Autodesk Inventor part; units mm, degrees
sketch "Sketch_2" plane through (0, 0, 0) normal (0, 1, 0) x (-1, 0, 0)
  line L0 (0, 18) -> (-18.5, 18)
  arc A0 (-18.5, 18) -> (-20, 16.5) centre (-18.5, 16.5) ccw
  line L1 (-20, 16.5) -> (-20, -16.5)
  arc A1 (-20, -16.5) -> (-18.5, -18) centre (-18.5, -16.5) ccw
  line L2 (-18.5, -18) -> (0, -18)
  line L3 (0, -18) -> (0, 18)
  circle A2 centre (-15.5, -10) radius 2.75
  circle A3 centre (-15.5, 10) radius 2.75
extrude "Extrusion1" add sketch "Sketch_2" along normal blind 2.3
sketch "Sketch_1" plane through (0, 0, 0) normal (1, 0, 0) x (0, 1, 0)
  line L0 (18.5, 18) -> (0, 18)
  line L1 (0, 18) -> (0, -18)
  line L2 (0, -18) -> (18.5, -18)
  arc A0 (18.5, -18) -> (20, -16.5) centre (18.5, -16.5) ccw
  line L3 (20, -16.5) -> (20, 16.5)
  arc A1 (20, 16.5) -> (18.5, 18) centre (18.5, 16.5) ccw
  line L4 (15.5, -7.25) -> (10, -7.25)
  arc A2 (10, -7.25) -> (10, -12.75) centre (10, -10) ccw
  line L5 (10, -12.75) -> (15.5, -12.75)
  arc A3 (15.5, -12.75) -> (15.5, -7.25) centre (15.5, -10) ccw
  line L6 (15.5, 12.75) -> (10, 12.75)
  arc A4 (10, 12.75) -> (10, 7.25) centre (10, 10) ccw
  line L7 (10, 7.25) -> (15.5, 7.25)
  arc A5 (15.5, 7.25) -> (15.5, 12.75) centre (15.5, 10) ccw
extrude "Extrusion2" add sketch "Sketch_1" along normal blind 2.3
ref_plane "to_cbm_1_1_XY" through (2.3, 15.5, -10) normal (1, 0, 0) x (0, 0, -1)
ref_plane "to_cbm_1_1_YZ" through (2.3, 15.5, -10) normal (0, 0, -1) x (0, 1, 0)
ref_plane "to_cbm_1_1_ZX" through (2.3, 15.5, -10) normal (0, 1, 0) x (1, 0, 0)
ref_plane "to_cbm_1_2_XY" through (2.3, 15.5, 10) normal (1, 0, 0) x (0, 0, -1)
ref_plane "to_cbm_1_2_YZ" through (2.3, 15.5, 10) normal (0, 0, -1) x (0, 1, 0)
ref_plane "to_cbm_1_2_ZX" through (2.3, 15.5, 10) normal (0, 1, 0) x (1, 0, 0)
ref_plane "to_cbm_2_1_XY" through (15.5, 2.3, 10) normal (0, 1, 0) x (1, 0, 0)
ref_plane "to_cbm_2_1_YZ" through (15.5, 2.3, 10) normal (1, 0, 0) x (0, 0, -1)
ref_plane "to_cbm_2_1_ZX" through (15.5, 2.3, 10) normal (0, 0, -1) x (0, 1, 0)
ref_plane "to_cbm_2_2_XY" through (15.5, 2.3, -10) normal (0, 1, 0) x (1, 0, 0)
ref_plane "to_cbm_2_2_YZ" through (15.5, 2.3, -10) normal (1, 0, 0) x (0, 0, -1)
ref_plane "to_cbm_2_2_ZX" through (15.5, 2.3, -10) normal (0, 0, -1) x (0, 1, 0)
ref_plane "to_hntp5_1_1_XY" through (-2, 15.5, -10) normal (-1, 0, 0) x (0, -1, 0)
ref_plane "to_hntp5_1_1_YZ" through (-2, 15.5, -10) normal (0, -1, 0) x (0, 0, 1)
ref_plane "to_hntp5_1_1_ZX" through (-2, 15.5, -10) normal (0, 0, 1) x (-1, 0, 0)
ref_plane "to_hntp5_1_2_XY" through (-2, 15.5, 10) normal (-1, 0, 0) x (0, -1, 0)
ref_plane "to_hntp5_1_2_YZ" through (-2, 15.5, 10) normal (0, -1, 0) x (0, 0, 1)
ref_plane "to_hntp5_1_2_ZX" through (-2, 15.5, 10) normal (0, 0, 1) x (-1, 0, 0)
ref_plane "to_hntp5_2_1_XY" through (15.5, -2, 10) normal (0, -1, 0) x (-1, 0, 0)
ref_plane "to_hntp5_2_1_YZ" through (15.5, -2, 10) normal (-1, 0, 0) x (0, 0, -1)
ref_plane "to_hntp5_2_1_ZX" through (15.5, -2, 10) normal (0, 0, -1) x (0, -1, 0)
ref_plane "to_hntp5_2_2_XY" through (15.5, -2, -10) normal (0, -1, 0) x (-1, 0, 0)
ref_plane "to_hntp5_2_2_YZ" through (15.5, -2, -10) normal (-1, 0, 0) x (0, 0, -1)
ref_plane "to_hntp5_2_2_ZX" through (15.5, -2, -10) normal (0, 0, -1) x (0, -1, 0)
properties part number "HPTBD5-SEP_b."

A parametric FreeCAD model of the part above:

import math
import FreeCAD as App
import Part
import Sketcher
from FreeCAD import Vector

doc = App.newDocument("Part")
body = doc.addObject("PartDesign::Body", "Body")

# Sketch on XZ plane
sketch1 = doc.addObject("Sketcher::SketchObject", "Sketch")
body.addObject(sketch1)
sketch1.AttachmentSupport = (doc.XZ_Plane, [""])
sketch1.MapMode = "FlatFace"
sketch1.addGeometry(Part.LineSegment(Vector(0, -18, 0), Vector(0, 18, 0)), False)
sketch1.addGeometry(Part.LineSegment(Vector(0, 18, 0), Vector(18.5, 18, 0)), False)
sketch1.addGeometry(Part.ArcOfCircle(Part.Circle(Vector(18.5, 16.5, 0), Vector(0, 0, 1), 1.5), math.radians(0), math.radians(90)), False)
sketch1.addGeometry(Part.LineSegment(Vector(20, 16.5, 0), Vector(20, -16.5, 0)), False)
sketch1.addGeometry(Part.ArcOfCircle(Part.Circle(Vector(18.5, -16.5, 0), Vector(0, 0, 1), 1.5), math.radians(-90), math.radians(0)), False)
sketch1.addGeometry(Part.LineSegment(Vector(18.5, -18, 0), Vector(0, -18, 0)), False)
sketch1.addGeometry(Part.Circle(Vector(15.5, -10, 0), Vector(0, 0, 1), 2.75), False)
sketch1.addGeometry(Part.Circle(Vector(15.5, 10, 0), Vector(0, 0, 1), 2.75), False)
sketch1.addConstraint(Sketcher.Constraint("Coincident", 0, 2, 1, 1))
sketch1.addConstraint(Sketcher.Constraint("Tangent", 1, 2, 2, 2))
sketch1.addConstraint(Sketcher.Constraint("Tangent", 2, 1, 3, 1))
sketch1.addConstraint(Sketcher.Constraint("Tangent", 3, 2, 4, 2))
sketch1.addConstraint(Sketcher.Constraint("Tangent", 4, 1, 5, 1))
sketch1.addConstraint(Sketcher.Constraint("Coincident", 5, 2, 0, 1))
sketch1.addConstraint(Sketcher.Constraint("Vertical", 0))
sketch1.addConstraint(Sketcher.Constraint("Horizontal", 1))
sketch1.addConstraint(Sketcher.Constraint("Vertical", 3))
sketch1.addConstraint(Sketcher.Constraint("Horizontal", 5))
sketch1.addConstraint(Sketcher.Constraint("Equal", 2, 4))
sketch1.addConstraint(Sketcher.Constraint("Equal", 6, 7))
sketch1.addConstraint(Sketcher.Constraint("Symmetric", 0, 2, 5, 2, -1, 1))
sketch1.addConstraint(Sketcher.Constraint("Symmetric", 6, 3, 7, 3, -1))
sketch1.addConstraint(Sketcher.Constraint("Diameter", 6, 5.5))
sketch1.addConstraint(Sketcher.Constraint("Radius", 2, 1.5))
sketch1.addConstraint(Sketcher.Constraint("DistanceY", 0, 1, 0, 2, 36.0))
sketch1.addConstraint(Sketcher.Constraint("DistanceX", 1, 1, 1, 2, 18.5))
sketch1.addConstraint(Sketcher.Constraint("DistanceY", 6, 3, -1, 1, 10.0))
sketch1.addConstraint(Sketcher.Constraint("DistanceX", 6, 3, 4, 3, 3.0))
pad1 = doc.addObject("PartDesign::Pad", "Pad")
body.addObject(pad1)
pad1.Profile = sketch1
pad1.Length = 2.3
pad1.Reversed = True

# Sketch on YZ plane
sketch2 = doc.addObject("Sketcher::SketchObject", "Sketch001")
body.addObject(sketch2)
sketch2.AttachmentSupport = (doc.YZ_Plane, [""])
sketch2.MapMode = "FlatFace"
sketch2.addGeometry(Part.ArcOfCircle(Part.Circle(Vector(18.5, 16.5, 0), Vector(0, 0, 1), 1.5), math.radians(0), math.radians(90)), False)
sketch2.addGeometry(Part.LineSegment(Vector(18.5, 18, 0), Vector(0, 18, 0)), False)
sketch2.addGeometry(Part.LineSegment(Vector(0, 18, 0), Vector(0, -18, 0)), False)
sketch2.addGeometry(Part.LineSegment(Vector(0, -18, 0), Vector(18.5, -18, 0)), False)
sketch2.addGeometry(Part.ArcOfCircle(Part.Circle(Vector(18.5, -16.5, 0), Vector(0, 0, 1), 1.5), math.radians(-90), math.radians(0)), False)
sketch2.addGeometry(Part.LineSegment(Vector(20, -16.5, 0), Vector(20, 16.5, 0)), False)
sketch2.addGeometry(Part.LineSegment(Vector(10, -7.25, 0), Vector(15.5, -7.25, 0)), False)
sketch2.addGeometry(Part.ArcOfCircle(Part.Circle(Vector(15.5, -10, 0), Vector(0, 0, 1), 2.75), math.radians(-90), math.radians(90)), False)
sketch2.addGeometry(Part.LineSegment(Vector(15.5, -12.75, 0), Vector(10, -12.75, 0)), False)
sketch2.addGeometry(Part.ArcOfCircle(Part.Circle(Vector(10, -10, 0), Vector(0, 0, 1), 2.75), math.radians(90), math.radians(270)), False)
sketch2.addGeometry(Part.LineSegment(Vector(10, 12.75, 0), Vector(15.5, 12.75, 0)), False)
sketch2.addGeometry(Part.ArcOfCircle(Part.Circle(Vector(15.5, 10, 0), Vector(0, 0, 1), 2.75), math.radians(-90), math.radians(90)), False)
sketch2.addGeometry(Part.LineSegment(Vector(15.5, 7.25, 0), Vector(10, 7.25, 0)), False)
sketch2.addGeometry(Part.ArcOfCircle(Part.Circle(Vector(10, 10, 0), Vector(0, 0, 1), 2.75), math.radians(90), math.radians(270)), False)
sketch2.addConstraint(Sketcher.Constraint("Tangent", 0, 2, 1, 1))
sketch2.addConstraint(Sketcher.Constraint("Coincident", 1, 2, 2, 1))
sketch2.addConstraint(Sketcher.Constraint("Coincident", 2, 2, 3, 1))
sketch2.addConstraint(Sketcher.Constraint("Tangent", 3, 2, 4, 1))
sketch2.addConstraint(Sketcher.Constraint("Tangent", 4, 2, 5, 1))
sketch2.addConstraint(Sketcher.Constraint("Tangent", 5, 2, 0, 1))
sketch2.addConstraint(Sketcher.Constraint("Tangent", 6, 2, 7, 2))
sketch2.addConstraint(Sketcher.Constraint("Tangent", 7, 1, 8, 1))
sketch2.addConstraint(Sketcher.Constraint("Tangent", 8, 2, 9, 2))
sketch2.addConstraint(Sketcher.Constraint("Tangent", 9, 1, 6, 1))
sketch2.addConstraint(Sketcher.Constraint("Tangent", 10, 2, 11, 2))
sketch2.addConstraint(Sketcher.Constraint("Tangent", 11, 1, 12, 1))
sketch2.addConstraint(Sketcher.Constraint("Tangent", 12, 2, 13, 2))
sketch2.addConstraint(Sketcher.Constraint("Tangent", 13, 1, 10, 1))
sketch2.addConstraint(Sketcher.Constraint("Horizontal", 1))
sketch2.addConstraint(Sketcher.Constraint("Vertical", 2))
sketch2.addConstraint(Sketcher.Constraint("Horizontal", 3))
sketch2.addConstraint(Sketcher.Constraint("Vertical", 5))
sketch2.addConstraint(Sketcher.Constraint("Horizontal", 6))
sketch2.addConstraint(Sketcher.Constraint("Horizontal", 8))
sketch2.addConstraint(Sketcher.Constraint("Horizontal", 10))
sketch2.addConstraint(Sketcher.Constraint("Horizontal", 12))
sketch2.addConstraint(Sketcher.Constraint("Equal", 0, 4))
sketch2.addConstraint(Sketcher.Constraint("Equal", 9, 11))
sketch2.addConstraint(Sketcher.Constraint("Symmetric", 1, 2, 2, 2, -1, 1))
sketch2.addConstraint(Sketcher.Constraint("Symmetric", 7, 3, 11, 3, -1))
sketch2.addConstraint(Sketcher.Constraint("Vertical", 9, 3, 13, 3))
sketch2.addConstraint(Sketcher.Constraint("Radius", 0, 1.5))
sketch2.addConstraint(Sketcher.Constraint("DistanceY", 2, 2, 2, 1, 36.0))
sketch2.addConstraint(Sketcher.Constraint("Radius", 7, 2.75))
sketch2.addConstraint(Sketcher.Constraint("DistanceX", 1, 2, 1, 1, 18.5))
sketch2.addConstraint(Sketcher.Constraint("DistanceX", 6, 1, 6, 2, 5.5))
sketch2.addConstraint(Sketcher.Constraint("DistanceY", 7, 3, -1, 1, 10.0))
sketch2.addConstraint(Sketcher.Constraint("DistanceX", -1, 1, 9, 3, 10.0))
pad2 = doc.addObject("PartDesign::Pad", "Pad001")
body.addObject(pad2)
pad2.Profile = sketch2
pad2.Length = 2.3

doc.recompute()
